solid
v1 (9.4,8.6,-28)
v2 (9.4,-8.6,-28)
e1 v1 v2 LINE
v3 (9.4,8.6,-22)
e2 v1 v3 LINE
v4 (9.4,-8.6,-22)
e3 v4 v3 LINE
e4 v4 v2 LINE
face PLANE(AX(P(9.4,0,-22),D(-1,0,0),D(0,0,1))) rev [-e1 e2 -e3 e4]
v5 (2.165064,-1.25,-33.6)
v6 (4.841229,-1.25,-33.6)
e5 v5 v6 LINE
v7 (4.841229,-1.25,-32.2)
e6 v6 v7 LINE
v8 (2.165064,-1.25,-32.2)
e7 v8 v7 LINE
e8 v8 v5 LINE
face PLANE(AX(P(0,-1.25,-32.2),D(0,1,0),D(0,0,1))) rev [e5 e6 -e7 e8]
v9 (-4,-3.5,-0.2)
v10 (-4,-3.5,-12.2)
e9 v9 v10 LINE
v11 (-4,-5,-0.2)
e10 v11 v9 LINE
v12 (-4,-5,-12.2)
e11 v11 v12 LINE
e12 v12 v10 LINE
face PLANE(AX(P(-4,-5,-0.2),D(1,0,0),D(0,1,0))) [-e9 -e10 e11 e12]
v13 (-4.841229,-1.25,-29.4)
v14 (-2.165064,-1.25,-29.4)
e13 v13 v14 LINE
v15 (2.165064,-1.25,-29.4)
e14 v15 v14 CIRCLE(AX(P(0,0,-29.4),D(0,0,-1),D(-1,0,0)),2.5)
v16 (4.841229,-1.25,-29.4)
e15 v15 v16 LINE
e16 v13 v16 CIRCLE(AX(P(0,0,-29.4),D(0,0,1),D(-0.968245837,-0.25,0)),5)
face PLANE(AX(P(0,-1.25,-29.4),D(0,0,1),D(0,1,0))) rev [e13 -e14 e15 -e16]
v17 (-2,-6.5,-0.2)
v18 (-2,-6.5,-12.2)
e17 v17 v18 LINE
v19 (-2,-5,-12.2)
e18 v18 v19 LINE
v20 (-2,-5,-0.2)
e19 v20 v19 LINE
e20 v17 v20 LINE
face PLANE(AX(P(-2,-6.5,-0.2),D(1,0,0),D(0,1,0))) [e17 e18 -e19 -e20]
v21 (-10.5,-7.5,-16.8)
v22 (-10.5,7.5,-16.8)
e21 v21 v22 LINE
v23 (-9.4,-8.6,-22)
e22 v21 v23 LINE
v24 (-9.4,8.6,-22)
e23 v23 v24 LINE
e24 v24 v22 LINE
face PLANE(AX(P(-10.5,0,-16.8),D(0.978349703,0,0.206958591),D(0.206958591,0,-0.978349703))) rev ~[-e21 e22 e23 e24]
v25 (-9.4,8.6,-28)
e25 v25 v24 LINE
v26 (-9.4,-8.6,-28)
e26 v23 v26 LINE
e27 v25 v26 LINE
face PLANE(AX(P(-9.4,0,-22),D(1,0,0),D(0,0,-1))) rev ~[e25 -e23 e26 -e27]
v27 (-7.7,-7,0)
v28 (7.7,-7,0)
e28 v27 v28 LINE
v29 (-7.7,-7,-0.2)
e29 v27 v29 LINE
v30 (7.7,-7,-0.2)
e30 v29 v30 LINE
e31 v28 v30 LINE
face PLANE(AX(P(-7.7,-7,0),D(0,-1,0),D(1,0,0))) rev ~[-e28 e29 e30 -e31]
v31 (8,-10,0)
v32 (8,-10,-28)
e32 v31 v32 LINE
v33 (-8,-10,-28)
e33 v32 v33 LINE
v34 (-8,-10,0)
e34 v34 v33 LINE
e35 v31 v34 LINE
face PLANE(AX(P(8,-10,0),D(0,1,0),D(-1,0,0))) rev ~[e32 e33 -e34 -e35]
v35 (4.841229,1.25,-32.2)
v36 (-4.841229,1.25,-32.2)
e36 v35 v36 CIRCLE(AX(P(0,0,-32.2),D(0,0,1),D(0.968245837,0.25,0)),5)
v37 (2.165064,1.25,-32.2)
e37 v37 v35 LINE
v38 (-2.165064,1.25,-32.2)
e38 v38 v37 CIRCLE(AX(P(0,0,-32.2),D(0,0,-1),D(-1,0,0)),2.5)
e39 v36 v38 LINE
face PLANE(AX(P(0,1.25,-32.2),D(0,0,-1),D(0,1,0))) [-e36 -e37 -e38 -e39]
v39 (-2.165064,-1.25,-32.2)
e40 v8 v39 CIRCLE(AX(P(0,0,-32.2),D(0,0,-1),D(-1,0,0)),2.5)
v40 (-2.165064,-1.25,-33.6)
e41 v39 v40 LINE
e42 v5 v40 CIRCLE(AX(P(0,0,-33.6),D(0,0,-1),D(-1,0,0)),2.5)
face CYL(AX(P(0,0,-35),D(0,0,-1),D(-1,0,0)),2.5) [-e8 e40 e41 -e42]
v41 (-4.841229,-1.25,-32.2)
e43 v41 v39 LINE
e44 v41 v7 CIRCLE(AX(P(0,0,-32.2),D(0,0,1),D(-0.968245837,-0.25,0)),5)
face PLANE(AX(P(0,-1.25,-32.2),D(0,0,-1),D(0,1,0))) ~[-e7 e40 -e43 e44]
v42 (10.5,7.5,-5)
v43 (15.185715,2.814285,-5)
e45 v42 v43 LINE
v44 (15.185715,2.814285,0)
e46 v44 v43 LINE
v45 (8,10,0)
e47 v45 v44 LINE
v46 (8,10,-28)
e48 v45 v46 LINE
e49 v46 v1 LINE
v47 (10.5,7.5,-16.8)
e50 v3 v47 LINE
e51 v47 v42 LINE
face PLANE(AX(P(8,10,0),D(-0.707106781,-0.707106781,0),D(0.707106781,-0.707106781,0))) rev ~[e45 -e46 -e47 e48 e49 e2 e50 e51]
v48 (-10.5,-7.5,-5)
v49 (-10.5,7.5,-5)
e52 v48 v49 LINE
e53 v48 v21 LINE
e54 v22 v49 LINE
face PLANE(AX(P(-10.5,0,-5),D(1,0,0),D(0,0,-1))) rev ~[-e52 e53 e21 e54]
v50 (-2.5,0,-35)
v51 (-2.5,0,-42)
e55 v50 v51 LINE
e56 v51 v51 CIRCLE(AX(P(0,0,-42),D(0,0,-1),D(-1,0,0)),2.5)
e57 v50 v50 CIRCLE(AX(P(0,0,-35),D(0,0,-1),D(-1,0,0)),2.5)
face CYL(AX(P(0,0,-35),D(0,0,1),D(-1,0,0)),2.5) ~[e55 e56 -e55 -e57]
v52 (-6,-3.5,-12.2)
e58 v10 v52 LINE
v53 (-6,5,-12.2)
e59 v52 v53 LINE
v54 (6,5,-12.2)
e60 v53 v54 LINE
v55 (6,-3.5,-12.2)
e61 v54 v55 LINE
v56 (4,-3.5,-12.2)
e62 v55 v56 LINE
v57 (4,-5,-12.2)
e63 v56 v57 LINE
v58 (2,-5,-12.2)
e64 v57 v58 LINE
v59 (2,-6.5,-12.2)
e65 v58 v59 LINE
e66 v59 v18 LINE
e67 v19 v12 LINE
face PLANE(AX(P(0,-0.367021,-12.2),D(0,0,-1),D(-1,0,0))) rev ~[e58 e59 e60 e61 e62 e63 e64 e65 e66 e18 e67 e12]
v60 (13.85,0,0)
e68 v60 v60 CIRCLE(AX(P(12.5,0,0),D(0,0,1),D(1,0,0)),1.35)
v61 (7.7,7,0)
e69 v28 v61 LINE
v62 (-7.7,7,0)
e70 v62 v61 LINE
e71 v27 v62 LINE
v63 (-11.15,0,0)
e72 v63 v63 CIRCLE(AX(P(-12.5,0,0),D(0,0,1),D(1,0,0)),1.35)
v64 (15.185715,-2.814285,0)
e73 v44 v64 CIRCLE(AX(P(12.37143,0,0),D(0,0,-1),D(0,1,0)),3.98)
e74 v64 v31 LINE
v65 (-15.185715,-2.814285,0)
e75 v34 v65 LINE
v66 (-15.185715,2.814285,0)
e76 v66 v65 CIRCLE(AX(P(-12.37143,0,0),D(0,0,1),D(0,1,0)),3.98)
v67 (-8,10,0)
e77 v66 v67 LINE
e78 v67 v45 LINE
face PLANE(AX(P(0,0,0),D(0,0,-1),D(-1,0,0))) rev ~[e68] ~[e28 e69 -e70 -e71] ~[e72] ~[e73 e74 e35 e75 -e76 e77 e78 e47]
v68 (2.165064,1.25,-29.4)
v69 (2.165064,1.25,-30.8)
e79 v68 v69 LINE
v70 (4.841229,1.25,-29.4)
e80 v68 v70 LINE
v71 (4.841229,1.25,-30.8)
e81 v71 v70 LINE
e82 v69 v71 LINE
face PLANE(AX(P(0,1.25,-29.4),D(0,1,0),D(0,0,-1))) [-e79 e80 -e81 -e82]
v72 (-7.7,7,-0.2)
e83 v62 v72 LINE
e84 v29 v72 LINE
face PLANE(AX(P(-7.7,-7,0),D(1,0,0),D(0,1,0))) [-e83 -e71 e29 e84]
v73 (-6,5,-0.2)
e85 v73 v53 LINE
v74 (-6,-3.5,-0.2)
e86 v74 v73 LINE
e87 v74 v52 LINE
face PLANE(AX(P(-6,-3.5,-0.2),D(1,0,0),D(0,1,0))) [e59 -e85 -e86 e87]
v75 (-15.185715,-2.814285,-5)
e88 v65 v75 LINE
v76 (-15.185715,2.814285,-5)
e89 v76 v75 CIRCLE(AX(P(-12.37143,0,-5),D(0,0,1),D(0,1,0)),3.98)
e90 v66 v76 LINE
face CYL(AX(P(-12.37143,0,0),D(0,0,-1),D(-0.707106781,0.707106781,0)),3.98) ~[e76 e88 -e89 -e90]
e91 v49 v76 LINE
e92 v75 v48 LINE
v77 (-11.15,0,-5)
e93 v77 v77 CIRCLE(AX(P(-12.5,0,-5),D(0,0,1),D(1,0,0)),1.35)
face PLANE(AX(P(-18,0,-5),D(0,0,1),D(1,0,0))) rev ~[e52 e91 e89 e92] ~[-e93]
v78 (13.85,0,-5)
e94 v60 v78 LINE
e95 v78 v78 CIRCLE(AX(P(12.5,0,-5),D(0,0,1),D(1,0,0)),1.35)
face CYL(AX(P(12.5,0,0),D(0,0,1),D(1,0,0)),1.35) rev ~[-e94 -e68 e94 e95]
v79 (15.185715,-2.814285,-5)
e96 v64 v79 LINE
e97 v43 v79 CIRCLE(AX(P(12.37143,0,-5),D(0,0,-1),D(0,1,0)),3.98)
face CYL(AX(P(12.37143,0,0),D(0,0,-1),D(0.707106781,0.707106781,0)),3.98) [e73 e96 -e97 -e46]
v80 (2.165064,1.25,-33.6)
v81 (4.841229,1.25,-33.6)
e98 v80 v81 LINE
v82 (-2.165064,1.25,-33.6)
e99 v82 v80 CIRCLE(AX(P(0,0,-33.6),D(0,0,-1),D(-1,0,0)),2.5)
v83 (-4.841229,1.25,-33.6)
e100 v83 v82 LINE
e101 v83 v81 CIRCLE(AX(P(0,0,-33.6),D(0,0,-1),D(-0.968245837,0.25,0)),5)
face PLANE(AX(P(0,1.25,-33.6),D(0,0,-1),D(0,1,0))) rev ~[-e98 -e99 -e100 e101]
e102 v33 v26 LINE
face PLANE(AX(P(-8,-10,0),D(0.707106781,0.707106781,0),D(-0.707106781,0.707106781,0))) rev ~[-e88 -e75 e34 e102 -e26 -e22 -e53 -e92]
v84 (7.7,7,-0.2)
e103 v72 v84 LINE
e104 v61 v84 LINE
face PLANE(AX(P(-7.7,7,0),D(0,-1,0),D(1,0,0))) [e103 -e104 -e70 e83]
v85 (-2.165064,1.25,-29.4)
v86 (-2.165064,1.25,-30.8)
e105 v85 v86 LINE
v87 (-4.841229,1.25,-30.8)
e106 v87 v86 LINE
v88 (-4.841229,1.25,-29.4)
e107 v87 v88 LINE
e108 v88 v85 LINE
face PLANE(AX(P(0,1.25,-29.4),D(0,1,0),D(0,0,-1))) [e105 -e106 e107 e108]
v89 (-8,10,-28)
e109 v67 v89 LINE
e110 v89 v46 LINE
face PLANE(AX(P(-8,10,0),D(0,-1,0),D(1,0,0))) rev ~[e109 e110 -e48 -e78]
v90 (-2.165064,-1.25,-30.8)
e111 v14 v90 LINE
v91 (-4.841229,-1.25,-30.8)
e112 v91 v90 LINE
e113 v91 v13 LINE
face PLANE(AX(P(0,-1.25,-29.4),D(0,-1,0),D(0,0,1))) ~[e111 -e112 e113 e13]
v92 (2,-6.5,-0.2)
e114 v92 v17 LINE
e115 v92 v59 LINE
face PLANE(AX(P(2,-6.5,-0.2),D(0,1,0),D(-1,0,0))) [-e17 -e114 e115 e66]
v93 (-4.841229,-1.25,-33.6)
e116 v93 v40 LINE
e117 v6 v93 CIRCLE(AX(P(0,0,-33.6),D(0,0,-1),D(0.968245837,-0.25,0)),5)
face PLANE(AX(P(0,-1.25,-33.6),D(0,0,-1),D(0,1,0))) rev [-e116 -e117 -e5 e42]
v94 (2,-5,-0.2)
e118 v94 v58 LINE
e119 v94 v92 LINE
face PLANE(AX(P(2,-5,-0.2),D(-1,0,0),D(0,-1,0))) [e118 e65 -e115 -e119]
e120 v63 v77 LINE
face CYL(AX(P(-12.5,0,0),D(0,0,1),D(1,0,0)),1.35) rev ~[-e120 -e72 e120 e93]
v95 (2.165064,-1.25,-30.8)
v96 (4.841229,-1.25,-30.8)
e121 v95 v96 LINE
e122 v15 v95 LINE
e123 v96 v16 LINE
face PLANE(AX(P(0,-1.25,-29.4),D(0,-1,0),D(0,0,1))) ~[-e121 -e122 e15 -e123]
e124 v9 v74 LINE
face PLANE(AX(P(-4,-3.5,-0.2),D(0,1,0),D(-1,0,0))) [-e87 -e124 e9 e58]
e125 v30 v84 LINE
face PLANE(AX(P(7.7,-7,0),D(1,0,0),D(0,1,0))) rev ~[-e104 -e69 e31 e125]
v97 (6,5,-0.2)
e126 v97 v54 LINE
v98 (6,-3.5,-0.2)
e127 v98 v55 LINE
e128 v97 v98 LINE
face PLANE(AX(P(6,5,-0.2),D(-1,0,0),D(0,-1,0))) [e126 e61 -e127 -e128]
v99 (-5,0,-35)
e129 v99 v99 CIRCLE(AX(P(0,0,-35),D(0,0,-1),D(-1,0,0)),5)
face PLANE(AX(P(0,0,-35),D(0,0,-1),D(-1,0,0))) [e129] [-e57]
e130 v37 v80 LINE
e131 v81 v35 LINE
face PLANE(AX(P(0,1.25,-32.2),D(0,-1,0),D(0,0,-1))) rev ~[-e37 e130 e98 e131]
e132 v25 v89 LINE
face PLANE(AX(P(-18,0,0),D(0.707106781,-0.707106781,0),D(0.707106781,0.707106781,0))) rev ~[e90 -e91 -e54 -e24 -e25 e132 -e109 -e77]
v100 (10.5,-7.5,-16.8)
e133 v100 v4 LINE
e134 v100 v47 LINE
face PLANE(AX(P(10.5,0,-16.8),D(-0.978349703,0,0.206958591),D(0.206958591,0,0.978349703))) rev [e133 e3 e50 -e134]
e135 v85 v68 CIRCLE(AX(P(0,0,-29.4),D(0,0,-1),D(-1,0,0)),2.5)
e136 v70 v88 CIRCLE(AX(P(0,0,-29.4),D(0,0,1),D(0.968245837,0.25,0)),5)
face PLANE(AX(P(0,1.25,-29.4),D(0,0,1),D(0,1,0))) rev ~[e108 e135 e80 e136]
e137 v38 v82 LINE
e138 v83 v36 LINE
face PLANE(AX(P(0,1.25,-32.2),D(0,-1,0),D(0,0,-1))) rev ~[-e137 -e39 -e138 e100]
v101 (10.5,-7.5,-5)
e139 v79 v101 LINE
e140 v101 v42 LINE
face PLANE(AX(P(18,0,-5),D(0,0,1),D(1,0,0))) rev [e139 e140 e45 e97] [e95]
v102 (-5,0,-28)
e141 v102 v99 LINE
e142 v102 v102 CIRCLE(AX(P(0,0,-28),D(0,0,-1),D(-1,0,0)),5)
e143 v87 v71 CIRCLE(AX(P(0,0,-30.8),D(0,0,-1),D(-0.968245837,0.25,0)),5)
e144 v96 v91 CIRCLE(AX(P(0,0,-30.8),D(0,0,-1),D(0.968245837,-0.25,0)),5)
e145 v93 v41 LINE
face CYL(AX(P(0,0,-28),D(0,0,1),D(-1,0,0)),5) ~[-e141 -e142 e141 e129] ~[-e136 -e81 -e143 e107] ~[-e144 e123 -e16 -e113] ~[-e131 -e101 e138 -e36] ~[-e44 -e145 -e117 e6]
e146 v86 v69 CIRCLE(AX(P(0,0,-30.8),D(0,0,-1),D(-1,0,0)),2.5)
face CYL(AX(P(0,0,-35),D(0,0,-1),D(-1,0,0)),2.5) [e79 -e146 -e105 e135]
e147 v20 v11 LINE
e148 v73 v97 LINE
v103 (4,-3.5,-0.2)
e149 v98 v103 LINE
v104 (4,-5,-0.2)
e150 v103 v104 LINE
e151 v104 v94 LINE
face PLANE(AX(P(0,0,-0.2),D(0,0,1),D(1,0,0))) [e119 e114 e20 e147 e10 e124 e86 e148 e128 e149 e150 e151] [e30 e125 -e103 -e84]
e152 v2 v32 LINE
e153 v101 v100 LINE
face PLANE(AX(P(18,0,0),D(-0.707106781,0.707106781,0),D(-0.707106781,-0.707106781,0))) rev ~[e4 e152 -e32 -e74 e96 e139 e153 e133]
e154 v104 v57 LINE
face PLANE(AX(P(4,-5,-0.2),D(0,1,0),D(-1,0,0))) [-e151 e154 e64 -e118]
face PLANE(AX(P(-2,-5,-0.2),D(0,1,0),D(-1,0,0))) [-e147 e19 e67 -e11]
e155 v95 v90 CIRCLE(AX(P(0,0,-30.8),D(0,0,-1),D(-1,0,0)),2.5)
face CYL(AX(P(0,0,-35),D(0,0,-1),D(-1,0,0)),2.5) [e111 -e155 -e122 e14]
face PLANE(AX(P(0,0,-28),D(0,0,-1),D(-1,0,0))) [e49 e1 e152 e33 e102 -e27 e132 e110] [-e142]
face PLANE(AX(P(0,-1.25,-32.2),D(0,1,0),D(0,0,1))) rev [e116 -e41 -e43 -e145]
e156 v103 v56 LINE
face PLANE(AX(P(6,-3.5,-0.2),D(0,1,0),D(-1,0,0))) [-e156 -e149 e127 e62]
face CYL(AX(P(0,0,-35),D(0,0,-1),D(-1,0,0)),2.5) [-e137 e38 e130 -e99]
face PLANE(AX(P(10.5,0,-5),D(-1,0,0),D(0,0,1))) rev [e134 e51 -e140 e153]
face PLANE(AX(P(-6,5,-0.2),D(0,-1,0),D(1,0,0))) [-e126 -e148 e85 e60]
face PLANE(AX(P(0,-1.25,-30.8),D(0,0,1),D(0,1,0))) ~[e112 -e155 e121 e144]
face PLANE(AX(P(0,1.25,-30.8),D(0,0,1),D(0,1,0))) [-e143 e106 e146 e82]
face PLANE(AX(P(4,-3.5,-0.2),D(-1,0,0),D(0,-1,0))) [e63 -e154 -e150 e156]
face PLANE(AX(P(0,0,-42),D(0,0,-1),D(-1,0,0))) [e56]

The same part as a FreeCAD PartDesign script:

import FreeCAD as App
import Part
import Sketcher
from FreeCAD import Vector
Q = App.Units.Quantity


def edges_at(feature, points):
    """Names of the edges that pass closest to the given points."""
    edges = feature.Shape.Edges
    near = lambda p: min(range(len(edges)), key=lambda i: edges[i].distToShape(Part.Vertex(*p))[0])
    return sorted({f"Edge{near(p) + 1}" for p in points})


def add_polygon(sketch, points):
    """Adds a closed chain of lines whose ends are joined by coincident constraints."""
    first, n = sketch.GeometryCount, len(points)
    for a, b in zip(points, points[1:] + points[:1]):
        sketch.addGeometry(Part.LineSegment(App.Vector(*a, 0), App.Vector(*b, 0)), False)
    for i in range(n):
        sketch.addConstraint(Sketcher.Constraint("Coincident", first + i, 2, first + (i + 1) % n, 1))

doc = App.newDocument("Part")
body = doc.addObject("PartDesign::Body", "Body")

# Sketch on XY plane
sketch1 = body.newObject("Sketcher::SketchObject", "Sketch")
sketch1.AttachmentSupport = (doc.getObject("XY_Plane"), [""])
sketch1.MapMode = "FlatFace"
add_polygon(sketch1, [(18, 0), (8, 10), (-8, 10), (-18, 0), (-8, -10), (8, -10)])  # lines 0-5
sketch1.addConstraint(Sketcher.Constraint("Horizontal", 1))
sketch1.addConstraint(Sketcher.Constraint("Horizontal", 4))
sketch1.addConstraint(Sketcher.Constraint("Symmetric", 0, 2, 3, 2, -1, 1))
sketch1.addConstraint(Sketcher.Constraint("Symmetric", 2, 2, 5, 2, -1, 1))
sketch1.addConstraint(Sketcher.Constraint("PointOnObject", 2, 2, -1))
sketch1.addConstraint(Sketcher.Constraint("Perpendicular", 0, 2))
sketch1.addConstraint(Sketcher.Constraint("Perpendicular", 3, 5))
sketch1.addConstraint(Sketcher.Constraint("Vertical", 1, 2, 3, 2))
sketch1.addConstraint(Sketcher.Constraint("DistanceX", 1, 2, 1, 1, Q("16 mm")))
sketch1.addConstraint(Sketcher.Constraint("DistanceY", -1, 1, 0, 2, Q("10 mm")))
pad1 = body.newObject("PartDesign::Pad", "Pad")
pad1.Profile = sketch1
pad1.Length = 28
pad1.Reversed = True

# Sketch on XZ plane
sketch2 = body.newObject("Sketcher::SketchObject", "Sketch001")
sketch2.AttachmentSupport = (doc.getObject("XZ_Plane"), [""])
sketch2.MapMode = "FlatFace"
add_polygon(sketch2, [(-18, -5), (-10.5, -5), (-10.5, -16.8), (-9.4, -22), (-9.4, -28), (-18, -28)])  # lines 0-5
sketch2.addConstraint(Sketcher.Constraint("Horizontal", 0))
sketch2.addConstraint(Sketcher.Constraint("Vertical", 1))
sketch2.addConstraint(Sketcher.Constraint("Vertical", 3))
sketch2.addConstraint(Sketcher.Constraint("Horizontal", 4))
sketch2.addConstraint(Sketcher.Constraint("Vertical", 5))
sketch2.addConstraint(Sketcher.Constraint("DistanceY", 3, 2, 3, 1, Q("6 mm")))
sketch2.addConstraint(Sketcher.Constraint("DistanceY", 5, 1, 5, 2, Q("23 mm")))
sketch2.addConstraint(Sketcher.Constraint("DistanceX", 0, 1, 0, 2, Q("7.5 mm")))
sketch2.addConstraint(Sketcher.Constraint("DistanceX", 4, 2, 4, 1, Q("8.6 mm")))
sketch2.addConstraint(Sketcher.Constraint("DistanceY", 1, 2, 1, 1, Q("11.8 mm")))
sketch2.addConstraint(Sketcher.Constraint("DistanceY", 0, 2, -1, 1, Q("5 mm")))
sketch2.addConstraint(Sketcher.Constraint("DistanceX", 4, 2, -1, 1, Q("18 mm")))
pocket1 = body.newObject("PartDesign::Pocket", "Pocket")
pocket1.Profile = sketch2
pocket1.Length = 22
pocket1.Midplane = True
doc.recompute()

mirrored = body.newObject("PartDesign::Mirrored", "Mirrored")
mirrored.Originals = [pocket1]
mirrored.MirrorPlane = (doc.getObject("YZ_Plane"), [""])
body.Tip = mirrored

# Sketch on XY plane
sketch3 = body.newObject("Sketcher::SketchObject", "Sketch002")
sketch3.AttachmentSupport = (doc.getObject("XY_Plane"), [""])
sketch3.MapMode = "FlatFace"
sketch3.addGeometry(Part.Circle(Vector(-12.5, 0, 0), Vector(0, 0, 1), 1.35), False)
sketch3.addConstraint(Sketcher.Constraint("PointOnObject", 0, 3, -1))
sketch3.addConstraint(Sketcher.Constraint("Diameter", 0, Q("2.7 mm")))
sketch3.addConstraint(Sketcher.Constraint("DistanceX", 0, 3, -1, 1, Q("12.5 mm")))
pocket2 = body.newObject("PartDesign::Pocket", "Pocket001")
pocket2.Profile = sketch3
pocket2.Type = "UpToFirst"

# Sketch on XY plane
sketch4 = body.newObject("Sketcher::SketchObject", "Sketch003")
sketch4.AttachmentSupport = (doc.getObject("XY_Plane"), [""])
sketch4.MapMode = "FlatFace"
sketch4.addGeometry(Part.Circle(Vector(12.5, 0, 0), Vector(0, 0, 1), 1.35), False)
sketch4.addConstraint(Sketcher.Constraint("PointOnObject", 0, 3, -1))
sketch4.addConstraint(Sketcher.Constraint("Diameter", 0, Q("2.7 mm")))
sketch4.addConstraint(Sketcher.Constraint("DistanceX", -1, 1, 0, 3, Q("12.5 mm")))
pocket3 = body.newObject("PartDesign::Pocket", "Pocket002")
pocket3.Profile = sketch4
pocket3.Type = "UpToFirst"
doc.recompute()

fillet = body.newObject("PartDesign::Fillet", "Fillet")
fillet.Base = (pocket3, edges_at(pocket3, [(-18, 0, -2.5), (18, 0, -2.5)]))
fillet.Radius = 3.98

# Sketch on XY plane
sketch5 = body.newObject("Sketcher::SketchObject", "Sketch004")
sketch5.AttachmentSupport = (doc.getObject("XY_Plane"), [""])
sketch5.MapMode = "FlatFace"
sketch5.AttachmentOffset = App.Placement(Vector(0, 0, -28), App.Rotation())
sketch5.addGeometry(Part.Circle(Vector(0, 0, 0), Vector(0, 0, 1), 5), False)
sketch5.addConstraint(Sketcher.Constraint("Coincident", 0, 3, -1, 1))
sketch5.addConstraint(Sketcher.Constraint("Diameter", 0, Q("10 mm")))
pad2 = body.newObject("PartDesign::Pad", "Pad001")
pad2.Profile = sketch5
pad2.Length = 7
pad2.Reversed = True

# Sketch on YZ plane
sketch6 = body.newObject("Sketcher::SketchObject", "Sketch005")
sketch6.AttachmentSupport = (doc.getObject("YZ_Plane"), [""])
sketch6.MapMode = "FlatFace"
add_polygon(sketch6, [(5, -29.4), (1.25, -29.4), (1.25, -30.8), (5, -30.8)])  # lines 0-3
add_polygon(sketch6, [(5, -32.2), (1.25, -32.2), (1.25, -33.6), (5, -33.6)])  # lines 4-7
sketch6.addConstraint(Sketcher.Constraint("Horizontal", 0))
sketch6.addConstraint(Sketcher.Constraint("Vertical", 1))
sketch6.addConstraint(Sketcher.Constraint("Horizontal", 2))
sketch6.addConstraint(Sketcher.Constraint("Vertical", 3))
sketch6.addConstraint(Sketcher.Constraint("Horizontal", 4))
sketch6.addConstraint(Sketcher.Constraint("Vertical", 5))
sketch6.addConstraint(Sketcher.Constraint("Horizontal", 6))
sketch6.addConstraint(Sketcher.Constraint("Vertical", 7))
sketch6.addConstraint(Sketcher.Constraint("Vertical", 1, 2, 4, 2))
sketch6.addConstraint(Sketcher.Constraint("Vertical", 3, 2, 6, 2))
sketch6.addConstraint(Sketcher.Constraint("Equal", 3, 5))
sketch6.addConstraint(Sketcher.Constraint("DistanceY", 1, 2, 1, 1, Q("1.4 mm")))
sketch6.addConstraint(Sketcher.Constraint("DistanceX", -1, 1, 2, 2, Q("5 mm")))
sketch6.addConstraint(Sketcher.Constraint("DistanceX", 0, 2, 0, 1, Q("3.75 mm")))
sketch6.addConstraint(Sketcher.Constraint("DistanceY", 0, 2, -1, 1, Q("29.4 mm")))
sketch6.addConstraint(Sketcher.Constraint("DistanceY", 4, 2, -1, 1, Q("32.2 mm")))
pocket4 = body.newObject("PartDesign::Pocket", "Pocket003")
pocket4.Profile = sketch6
pocket4.Length = 34.70286
pocket4.Midplane = True
doc.recompute()

mirrored2 = body.newObject("PartDesign::Mirrored", "Mirrored001")
mirrored2.Originals = [pocket4]
mirrored2.MirrorPlane = (doc.getObject("XZ_Plane"), [""])
body.Tip = mirrored2

# Sketch on XY plane
sketch7 = body.newObject("Sketcher::SketchObject", "Sketch006")
sketch7.AttachmentSupport = (doc.getObject("XY_Plane"), [""])
sketch7.MapMode = "FlatFace"
sketch7.AttachmentOffset = App.Placement(Vector(0, 0, -35), App.Rotation())
sketch7.addGeometry(Part.Circle(Vector(0, 0, 0), Vector(0, 0, 1), 2.5), False)
sketch7.addConstraint(Sketcher.Constraint("Coincident", 0, 3, -1, 1))
sketch7.addConstraint(Sketcher.Constraint("Diameter", 0, Q("5 mm")))
pad3 = body.newObject("PartDesign::Pad", "Pad002")
pad3.Profile = sketch7
pad3.Type = "TwoLengths"
pad3.Length = 7
pad3.Length2 = 7
pad3.Reversed = True

# Sketch on XY plane
sketch8 = body.newObject("Sketcher::SketchObject", "Sketch007")
sketch8.AttachmentSupport = (doc.getObject("XY_Plane"), [""])
sketch8.MapMode = "FlatFace"
add_polygon(sketch8, [(-7.7, 7), (-7.7, -7), (7.7, -7), (7.7, 7)])  # lines 0-3
sketch8.addConstraint(Sketcher.Constraint("Vertical", 0))
sketch8.addConstraint(Sketcher.Constraint("Horizontal", 1))
sketch8.addConstraint(Sketcher.Constraint("Vertical", 2))
sketch8.addConstraint(Sketcher.Constraint("Horizontal", 3))
sketch8.addConstraint(Sketcher.Constraint("Symmetric", 0, 2, 2, 2, -1, 1))
sketch8.addConstraint(Sketcher.Constraint("DistanceY", 0, 2, 0, 1, Q("14 mm")))
sketch8.addConstraint(Sketcher.Constraint("DistanceX", 1, 1, 1, 2, Q("15.4 mm")))
pocket5 = body.newObject("PartDesign::Pocket", "Pocket004")
pocket5.Profile = sketch8
pocket5.Length = 0.2

# Sketch on XY plane
sketch9 = body.newObject("Sketcher::SketchObject", "Sketch008")
sketch9.AttachmentSupport = (doc.getObject("XY_Plane"), [""])
sketch9.MapMode = "FlatFace"
sketch9.AttachmentOffset = App.Placement(Vector(0, 0, -0.2), App.Rotation())
add_polygon(sketch9, [(6, 5), (-6, 5), (-6, -3.5), (-4, -3.5), (-4, -5), (-2, -5), (-2, -6.5), (2, -6.5), (2, -5), (4, -5), (4, -3.5), (6, -3.5)])  # lines 0-11
sketch9.addConstraint(Sketcher.Constraint("Horizontal", 0))
sketch9.addConstraint(Sketcher.Constraint("Vertical", 1))
sketch9.addConstraint(Sketcher.Constraint("Horizontal", 2))
sketch9.addConstraint(Sketcher.Constraint("Vertical", 3))
sketch9.addConstraint(Sketcher.Constraint("Horizontal", 4))
sketch9.addConstraint(Sketcher.Constraint("Vertical", 5))
sketch9.addConstraint(Sketcher.Constraint("Horizontal", 6))
sketch9.addConstraint(Sketcher.Constraint("Vertical", 7))
sketch9.addConstraint(Sketcher.Constraint("Horizontal", 8))
sketch9.addConstraint(Sketcher.Constraint("Vertical", 9))
sketch9.addConstraint(Sketcher.Constraint("Horizontal", 10))
sketch9.addConstraint(Sketcher.Constraint("Vertical", 11))
sketch9.addConstraint(Sketcher.Constraint("Symmetric", 4, 2, 7, 2, -2))
sketch9.addConstraint(Sketcher.Constraint("Symmetric", 2, 2, 9, 2, -2))
sketch9.addConstraint(Sketcher.Constraint("Equal", 2, 4))
sketch9.addConstraint(Sketcher.Constraint("Equal", 8, 10))
sketch9.addConstraint(Sketcher.Constraint("Equal", 3, 5))
sketch9.addConstraint(Sketcher.Constraint("DistanceX", 0, 2, 0, 1, Q("12 mm")))
sketch9.addConstraint(Sketcher.Constraint("DistanceX", 2, 1, 2, 2, Q("2 mm")))
sketch9.addConstraint(Sketcher.Constraint("DistanceY", 1, 2, 1, 1, Q("8.5 mm")))
sketch9.addConstraint(Sketcher.Constraint("DistanceY", 3, 2, 3, 1, Q("1.5 mm")))
sketch9.addConstraint(Sketcher.Constraint("DistanceY", -1, 1, 0, 2, Q("5 mm")))
pocket6 = body.newObject("PartDesign::Pocket", "Pocket005")
pocket6.Profile = sketch9
pocket6.Length = 12

doc.recompute()
